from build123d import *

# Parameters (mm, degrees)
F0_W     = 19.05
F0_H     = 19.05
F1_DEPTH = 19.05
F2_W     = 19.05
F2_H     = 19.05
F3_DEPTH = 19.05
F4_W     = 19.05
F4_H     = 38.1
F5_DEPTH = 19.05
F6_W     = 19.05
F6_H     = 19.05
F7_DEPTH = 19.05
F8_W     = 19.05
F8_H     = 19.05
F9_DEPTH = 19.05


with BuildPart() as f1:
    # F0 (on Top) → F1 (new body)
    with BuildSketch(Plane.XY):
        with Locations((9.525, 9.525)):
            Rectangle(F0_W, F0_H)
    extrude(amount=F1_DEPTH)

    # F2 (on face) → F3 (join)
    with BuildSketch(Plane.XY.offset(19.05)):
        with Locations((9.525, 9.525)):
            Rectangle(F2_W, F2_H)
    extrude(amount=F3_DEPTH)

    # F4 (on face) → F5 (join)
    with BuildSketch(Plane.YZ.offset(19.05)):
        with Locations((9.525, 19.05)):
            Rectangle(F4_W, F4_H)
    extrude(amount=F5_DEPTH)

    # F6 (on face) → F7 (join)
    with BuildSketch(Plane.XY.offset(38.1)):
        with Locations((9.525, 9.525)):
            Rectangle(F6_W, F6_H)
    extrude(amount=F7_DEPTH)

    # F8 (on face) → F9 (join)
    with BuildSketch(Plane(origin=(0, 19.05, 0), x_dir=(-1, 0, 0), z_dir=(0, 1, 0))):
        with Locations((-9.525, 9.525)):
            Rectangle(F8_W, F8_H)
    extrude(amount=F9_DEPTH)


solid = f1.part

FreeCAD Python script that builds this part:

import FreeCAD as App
import Part
import Sketcher
Q = App.Units.Quantity

doc = App.newDocument("Part")
params = doc.addObject("Spreadsheet::Sheet", "Params")
for row, (alias, value) in enumerate([
    ("sketch1_width", "0.75 in"),
    ("pad1_length", "0.75 in"),
    ("sketch2_width", "0.75 in"),
    ("pad2_length", "0.75 in"),
    ("sketch3_height", "1.5 in"),
    ("sketch3_width", "0.75 in"),
    ("pad3_length", "0.75 in"),
    ("sketch4_width", "0.75 in"),
    ("pad4_length", "0.75 in"),
    ("sketch5_width", "0.75 in"),
    ("pad5_length", "0.75 in"),
], start=1):
    params.set(f"A{row}", alias)
    params.set(f"B{row}", "=" + value)
    params.setAlias(f"B{row}", alias)

body = doc.addObject("PartDesign::Body", "Body")

# Sketch on XY plane
sketch1 = doc.addObject("Sketcher::SketchObject", "Sketch")
body.addObject(sketch1)
sketch1.AttachmentSupport = (doc.XY_Plane, [""])
sketch1.MapMode = "FlatFace"
sketch1.addGeometry([
    Part.LineSegment(App.Vector(0, 19.05, 0), App.Vector(0, 0, 0)),
    Part.LineSegment(App.Vector(0, 0, 0), App.Vector(19.05, 0, 0)),
    Part.LineSegment(App.Vector(19.05, 0, 0), App.Vector(19.05, 19.05, 0)),
    Part.LineSegment(App.Vector(19.05, 19.05, 0), App.Vector(0, 19.05, 0)),
], False)
sketch1.addConstraint([
    Sketcher.Constraint("Coincident", 0, 2, 1, 1),
    Sketcher.Constraint("Coincident", 1, 2, 2, 1),
    Sketcher.Constraint("Coincident", 2, 2, 3, 1),
    Sketcher.Constraint("Coincident", 3, 2, 0, 1),
    Sketcher.Constraint("Vertical", 0),
    Sketcher.Constraint("Horizontal", 1),
    Sketcher.Constraint("Vertical", 2),
    Sketcher.Constraint("Horizontal", 3),
    Sketcher.Constraint("Coincident", 0, 2, -1, 1),
    Sketcher.Constraint("Equal", 3, 0),
    Sketcher.Constraint("DistanceX", 1, 1, 1, 2, Q("0.75 in")),
])
sketch1.setExpression("Constraints[10]", "Params.sketch1_width")
pad1 = doc.addObject("PartDesign::Pad", "Pad")
body.addObject(pad1)
pad1.Profile = sketch1
pad1.setExpression("Length", "Params.pad1_length")

# Sketch on XY plane
sketch2 = doc.addObject("Sketcher::SketchObject", "Sketch001")
body.addObject(sketch2)
sketch2.AttachmentSupport = (doc.XY_Plane, [""])
sketch2.MapMode = "FlatFace"
sketch2.AttachmentOffset = App.Placement(App.Vector(0, 0, 0.75 * 25.4), App.Rotation())
sketch2.addGeometry([
    Part.LineSegment(App.Vector(0, 19.05, 0), App.Vector(0, 0, 0)),
    Part.LineSegment(App.Vector(0, 0, 0), App.Vector(19.05, 0, 0)),
    Part.LineSegment(App.Vector(19.05, 0, 0), App.Vector(19.05, 19.05, 0)),
    Part.LineSegment(App.Vector(19.05, 19.05, 0), App.Vector(0, 19.05, 0)),
], False)
sketch2.addConstraint([
    Sketcher.Constraint("Coincident", 0, 2, 1, 1),
    Sketcher.Constraint("Coincident", 1, 2, 2, 1),
    Sketcher.Constraint("Coincident", 2, 2, 3, 1),
    Sketcher.Constraint("Coincident", 3, 2, 0, 1),
    Sketcher.Constraint("Vertical", 0),
    Sketcher.Constraint("Horizontal", 1),
    Sketcher.Constraint("Vertical", 2),
    Sketcher.Constraint("Horizontal", 3),
    Sketcher.Constraint("Coincident", 0, 2, -1, 1),
    Sketcher.Constraint("Equal", 3, 0),
    Sketcher.Constraint("DistanceX", 1, 1, 1, 2, Q("0.75 in")),
])
sketch2.setExpression("Constraints[10]", "Params.sketch2_width")
pad2 = doc.addObject("PartDesign::Pad", "Pad001")
body.addObject(pad2)
pad2.Profile = sketch2
pad2.setExpression("Length", "Params.pad2_length")

# Sketch on YZ plane
sketch3 = doc.addObject("Sketcher::SketchObject", "Sketch002")
body.addObject(sketch3)
sketch3.AttachmentSupport = (doc.YZ_Plane, [""])
sketch3.MapMode = "FlatFace"
sketch3.AttachmentOffset = App.Placement(App.Vector(0, 0, 0.75 * 25.4), App.Rotation())
sketch3.addGeometry([
    Part.LineSegment(App.Vector(0, 38.1, 0), App.Vector(0, 0, 0)),
    Part.LineSegment(App.Vector(0, 0, 0), App.Vector(19.05, 0, 0)),
    Part.LineSegment(App.Vector(19.05, 0, 0), App.Vector(19.05, 38.1, 0)),
    Part.LineSegment(App.Vector(19.05, 38.1, 0), App.Vector(0, 38.1, 0)),
], False)
sketch3.addConstraint([
    Sketcher.Constraint("Coincident", 0, 2, 1, 1),
    Sketcher.Constraint("Coincident", 1, 2, 2, 1),
    Sketcher.Constraint("Coincident", 2, 2, 3, 1),
    Sketcher.Constraint("Coincident", 3, 2, 0, 1),
    Sketcher.Constraint("Vertical", 0),
    Sketcher.Constraint("Horizontal", 1),
    Sketcher.Constraint("Vertical", 2),
    Sketcher.Constraint("Horizontal", 3),
    Sketcher.Constraint("Coincident", 0, 2, -1, 1),
    Sketcher.Constraint("DistanceY", 0, 2, 0, 1, Q("1.5 in")),
    Sketcher.Constraint("DistanceX", 1, 1, 1, 2, Q("0.75 in")),
])
sketch3.setExpression("Constraints[9]", "Params.sketch3_height")
sketch3.setExpression("Constraints[10]", "Params.sketch3_width")
pad3 = doc.addObject("PartDesign::Pad", "Pad002")
body.addObject(pad3)
pad3.Profile = sketch3
pad3.setExpression("Length", "Params.pad3_length")

# Sketch on XY plane
sketch4 = doc.addObject("Sketcher::SketchObject", "Sketch003")
body.addObject(sketch4)
sketch4.AttachmentSupport = (doc.XY_Plane, [""])
sketch4.MapMode = "FlatFace"
sketch4.AttachmentOffset = App.Placement(App.Vector(0, 0, 1.5 * 25.4), App.Rotation())
sketch4.addGeometry([
    Part.LineSegment(App.Vector(0, 19.05, 0), App.Vector(0, 0, 0)),
    Part.LineSegment(App.Vector(0, 0, 0), App.Vector(19.05, 0, 0)),
    Part.LineSegment(App.Vector(19.05, 0, 0), App.Vector(19.05, 19.05, 0)),
    Part.LineSegment(App.Vector(19.05, 19.05, 0), App.Vector(0, 19.05, 0)),
], False)
sketch4.addConstraint([
    Sketcher.Constraint("Coincident", 0, 2, 1, 1),
    Sketcher.Constraint("Coincident", 1, 2, 2, 1),
    Sketcher.Constraint("Coincident", 2, 2, 3, 1),
    Sketcher.Constraint("Coincident", 3, 2, 0, 1),
    Sketcher.Constraint("Vertical", 0),
    Sketcher.Constraint("Horizontal", 1),
    Sketcher.Constraint("Vertical", 2),
    Sketcher.Constraint("Horizontal", 3),
    Sketcher.Constraint("Coincident", 0, 2, -1, 1),
    Sketcher.Constraint("Equal", 3, 0),
    Sketcher.Constraint("DistanceX", 1, 1, 1, 2, Q("0.75 in")),
])
sketch4.setExpression("Constraints[10]", "Params.sketch4_width")
pad4 = doc.addObject("PartDesign::Pad", "Pad003")
body.addObject(pad4)
pad4.Profile = sketch4
pad4.setExpression("Length", "Params.pad4_length")

# Sketch on XZ plane
sketch5 = doc.addObject("Sketcher::SketchObject", "Sketch004")
body.addObject(sketch5)
sketch5.AttachmentSupport = (doc.XZ_Plane, [""])
sketch5.MapMode = "FlatFace"
sketch5.AttachmentOffset = App.Placement(App.Vector(0, 0, -0.75 * 25.4), App.Rotation())
sketch5.addGeometry([
    Part.LineSegment(App.Vector(19.05, 19.05, 0), App.Vector(19.05, 0, 0)),
    Part.LineSegment(App.Vector(19.05, 0, 0), App.Vector(0, 0, 0)),
    Part.LineSegment(App.Vector(0, 0, 0), App.Vector(0, 19.05, 0)),
    Part.LineSegment(App.Vector(0, 19.05, 0), App.Vector(19.05, 19.05, 0)),
], False)
sketch5.addConstraint([
    Sketcher.Constraint("Coincident", 0, 2, 1, 1),
    Sketcher.Constraint("Coincident", 1, 2, 2, 1),
    Sketcher.Constraint("Coincident", 2, 2, 3, 1),
    Sketcher.Constraint("Coincident", 3, 2, 0, 1),
    Sketcher.Constraint("Vertical", 0),
    Sketcher.Constraint("Horizontal", 1),
    Sketcher.Constraint("Vertical", 2),
    Sketcher.Constraint("Horizontal", 3),
    Sketcher.Constraint("Coincident", 1, 2, -1, 1),
    Sketcher.Constraint("Equal", 3, 0),
    Sketcher.Constraint("DistanceX", 1, 2, 1, 1, Q("0.75 in")),
])
sketch5.setExpression("Constraints[10]", "Params.sketch5_width")
pad5 = doc.addObject("PartDesign::Pad", "Pad004")
body.addObject(pad5)
pad5.Profile = sketch5
pad5.setExpression("Length", "Params.pad5_length")
pad5.Reversed = True

doc.recompute()
